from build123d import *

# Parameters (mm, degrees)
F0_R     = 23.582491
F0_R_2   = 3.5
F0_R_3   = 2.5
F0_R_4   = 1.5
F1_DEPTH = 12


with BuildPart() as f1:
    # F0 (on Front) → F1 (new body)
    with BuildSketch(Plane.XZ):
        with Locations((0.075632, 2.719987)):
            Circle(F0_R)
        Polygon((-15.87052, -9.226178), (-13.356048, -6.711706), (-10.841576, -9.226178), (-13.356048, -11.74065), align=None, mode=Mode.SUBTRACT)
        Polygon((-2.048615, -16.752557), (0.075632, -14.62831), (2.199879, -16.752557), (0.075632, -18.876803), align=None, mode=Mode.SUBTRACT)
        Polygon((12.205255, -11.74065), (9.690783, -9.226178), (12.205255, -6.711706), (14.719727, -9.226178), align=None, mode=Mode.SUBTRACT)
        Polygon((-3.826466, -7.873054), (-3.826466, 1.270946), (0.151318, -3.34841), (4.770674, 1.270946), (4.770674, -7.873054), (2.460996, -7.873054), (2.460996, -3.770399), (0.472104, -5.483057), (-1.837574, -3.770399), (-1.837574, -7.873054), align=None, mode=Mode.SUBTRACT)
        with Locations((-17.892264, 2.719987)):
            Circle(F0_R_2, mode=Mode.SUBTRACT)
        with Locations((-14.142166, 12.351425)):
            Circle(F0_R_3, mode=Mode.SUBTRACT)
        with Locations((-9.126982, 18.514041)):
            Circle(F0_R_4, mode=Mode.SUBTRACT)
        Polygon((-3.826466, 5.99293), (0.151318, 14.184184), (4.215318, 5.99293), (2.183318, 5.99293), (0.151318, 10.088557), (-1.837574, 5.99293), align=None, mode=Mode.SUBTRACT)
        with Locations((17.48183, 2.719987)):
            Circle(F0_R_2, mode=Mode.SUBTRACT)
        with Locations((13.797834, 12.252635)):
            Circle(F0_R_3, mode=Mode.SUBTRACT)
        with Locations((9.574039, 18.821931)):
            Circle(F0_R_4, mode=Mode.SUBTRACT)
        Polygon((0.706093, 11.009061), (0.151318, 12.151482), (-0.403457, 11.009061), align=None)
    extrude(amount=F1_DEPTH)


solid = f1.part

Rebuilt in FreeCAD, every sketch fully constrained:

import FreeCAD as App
import Part
import Sketcher

V = App.Vector
Q = App.Units.Quantity


def add_polygon(sketch, points):
    """Adds a closed chain of lines whose ends are joined by coincident constraints."""
    first, n = sketch.GeometryCount, len(points)
    for a, b in zip(points, points[1:] + points[:1]):
        sketch.addGeometry(Part.LineSegment(App.Vector(*a, 0), App.Vector(*b, 0)), False)
    for i in range(n):
        sketch.addConstraint(Sketcher.Constraint("Coincident", first + i, 2, first + (i + 1) % n, 1))

doc = App.newDocument("Part")
params = doc.addObject("Spreadsheet::Sheet", "Params")
for row, (alias, value) in enumerate([
    ("sketch1_width", "0.08 in"),
    ("sketch1_height", "0.36 in"),
    ("sketch1_length", "0.14 in"),
    ("sketch1_length2", "0.24 in"),
    ("sketch1_length3", "0.36 in"),
    ("pad1_length", "12 mm"),
], start=1):
    params.set(f"A{row}", alias)
    params.set(f"B{row}", "=" + value)
    params.setAlias(f"B{row}", alias)

body = doc.addObject("PartDesign::Body", "Body")
body.AllowCompound = True

# Sketch on XZ plane
sketch1 = body.newObject("Sketcher::SketchObject", "Sketch")
sketch1.AttachmentSupport = (doc.getObject("XZ_Plane"), [""])
sketch1.MapMode = "FlatFace"
sketch1.addGeometry(Part.Circle(V(0.075632, 2.719987, 0), V(0, 0, 1), 23.582491), False)  # 0
add_polygon(sketch1, [(-13.356048, -11.74065), (-15.87052, -9.226178), (-13.356048, -6.711706), (-10.841576, -9.226178)])  # lines 1-4
add_polygon(sketch1, [(0.075632, -18.876803), (-2.048615, -16.752557), (0.075632, -14.62831), (2.199879, -16.752557)])  # lines 5-8
add_polygon(sketch1, [(14.719727, -9.226178), (12.205255, -11.74065), (9.690783, -9.226178), (12.205255, -6.711706)])  # lines 9-12
add_polygon(sketch1, [(-1.837574, -7.873054), (-3.826466, -7.873054), (-3.826466, 1.270946), (0.151318, -3.34841), (4.770674, 1.270946), (4.770674, -7.873054), (2.460996, -7.873054), (2.460996, -3.770399), (0.472104, -5.483057), (-1.837574, -3.770399)])  # lines 13-22
sketch1.addGeometry(Part.Circle(V(-17.892264, 2.719987, 0), V(0, 0, 1), 3.5), False)  # 23
sketch1.addGeometry(Part.Circle(V(-14.142166, 12.351425, 0), V(0, 0, 1), 2.5), False)  # 24
sketch1.addGeometry(Part.Circle(V(-9.126982, 18.514041, 0), V(0, 0, 1), 1.5), False)  # 25
add_polygon(sketch1, [(-1.837574, 5.99293), (-3.826466, 5.99293), (0.151318, 14.184184), (4.215318, 5.99293), (2.183318, 5.99293), (0.151318, 10.088557)])  # lines 26-31
sketch1.addGeometry(Part.Circle(V(17.48183, 2.719987, 0), V(0, 0, 1), 3.5), False)  # 32
sketch1.addGeometry(Part.Circle(V(9.574039, 18.821931, 0), V(0, 0, 1), 1.5), False)  # 33
sketch1.addGeometry(Part.Circle(V(13.797834, 12.252635, 0), V(0, 0, 1), 2.5), False)  # 34
add_polygon(sketch1, [(0.706093, 11.009061), (0.151318, 12.151482), (-0.403457, 11.009061)])  # lines 35-37
sketch1.addConstraint(Sketcher.Constraint("Horizontal", 13))
sketch1.addConstraint(Sketcher.Constraint("Vertical", 14))
sketch1.addConstraint(Sketcher.Constraint("Vertical", 17))
sketch1.addConstraint(Sketcher.Constraint("Horizontal", 18))
sketch1.addConstraint(Sketcher.Constraint("Vertical", 19))
sketch1.addConstraint(Sketcher.Constraint("Vertical", 22))
sketch1.addConstraint(Sketcher.Constraint("Horizontal", 26))
sketch1.addConstraint(Sketcher.Constraint("Horizontal", 29))
sketch1.addConstraint(Sketcher.Constraint("Horizontal", 37))
sketch1.addConstraint(Sketcher.Constraint("Equal", 23, 32))
sketch1.addConstraint(Sketcher.Constraint("Equal", 25, 33))
sketch1.addConstraint(Sketcher.Constraint("Equal", 24, 34))
sketch1.addConstraint(Sketcher.Constraint("Perpendicular", 1, 2))
sketch1.addConstraint(Sketcher.Constraint("Perpendicular", 2, 3))
sketch1.addConstraint(Sketcher.Constraint("Perpendicular", 3, 4))
sketch1.addConstraint(Sketcher.Constraint("Perpendicular", 4, 5))
sketch1.addConstraint(Sketcher.Constraint("Perpendicular", 5, 6))
sketch1.addConstraint(Sketcher.Constraint("Perpendicular", 6, 7))
sketch1.addConstraint(Sketcher.Constraint("Perpendicular", 7, 8))
sketch1.addConstraint(Sketcher.Constraint("Parallel", 8, 9))
sketch1.addConstraint(Sketcher.Constraint("Perpendicular", 9, 10))
sketch1.addConstraint(Sketcher.Constraint("Perpendicular", 10, 11))
sketch1.addConstraint(Sketcher.Constraint("Perpendicular", 11, 12))
sketch1.addConstraint(Sketcher.Constraint("Perpendicular", 12, 16))
sketch1.addConstraint(Sketcher.Constraint("Perpendicular", 15, 20))
sketch1.addConstraint(Sketcher.Constraint("Parallel", 28, 30))
sketch1.addConstraint(Sketcher.Constraint("Parallel", 27, 31))
sketch1.addConstraint(Sketcher.Constraint("Parallel", 31, 36))
sketch1.addConstraint(Sketcher.Constraint("Horizontal", 0, 3, 23, 3))
sketch1.addConstraint(Sketcher.Constraint("Horizontal", 23, 3, 32, 3))
sketch1.addConstraint(Sketcher.Constraint("Horizontal", 1, 2, 3, 2))
sketch1.addConstraint(Sketcher.Constraint("Horizontal", 5, 2, 7, 2))
sketch1.addConstraint(Sketcher.Constraint("Horizontal", 4, 2, 9, 2))
sketch1.addConstraint(Sketcher.Constraint("Horizontal", 3, 2, 10, 2))
sketch1.addConstraint(Sketcher.Constraint("Horizontal", 2, 2, 11, 2))
sketch1.addConstraint(Sketcher.Constraint("Horizontal", 14, 2, 16, 2))
sketch1.addConstraint(Sketcher.Constraint("Horizontal", 13, 2, 17, 2))
sketch1.addConstraint(Sketcher.Constraint("Horizontal", 19, 2, 21, 2))
sketch1.addConstraint(Sketcher.Constraint("Horizontal", 26, 2, 28, 2))
sketch1.addConstraint(Sketcher.Constraint("Vertical", 2, 2, 4, 2))
sketch1.addConstraint(Sketcher.Constraint("Vertical", 0, 3, 6, 2))
sketch1.addConstraint(Sketcher.Constraint("Vertical", 14, 2, 26, 2))
sketch1.addConstraint(Sketcher.Constraint("Vertical", 15, 2, 27, 2))
sketch1.addConstraint(Sketcher.Constraint("Vertical", 27, 2, 30, 2))
sketch1.addConstraint(Sketcher.Constraint("Vertical", 22, 2, 31, 2))
sketch1.addConstraint(Sketcher.Constraint("Vertical", 30, 2, 35, 2))
sketch1.addConstraint(Sketcher.Constraint("Equal", 35, 36))
sketch1.addConstraint(Sketcher.Constraint("DistanceX", 29, 2, 29, 1, Q("0.08 in")))
sketch1.addConstraint(Sketcher.Constraint("DistanceY", 14, 1, 14, 2, Q("0.36 in")))
sketch1.addConstraint(Sketcher.Constraint("DistanceX", 24, 3, 34, 3, Q("1.1 in")))
sketch1.addConstraint(Sketcher.Constraint("Distance", 1, Q("0.14 in")))
sketch1.addConstraint(Sketcher.Constraint("Distance", 15, Q("0.24 in")))
sketch1.addConstraint(Sketcher.Constraint("Distance", 28, Q("0.36 in")))
sketch1.addConstraint(Sketcher.Constraint("Distance", 30, Q("0.18 in")))
sketch1.addConstraint(Sketcher.Constraint("Distance", 35, Q("0.05 in")))
sketch1.addConstraint(Sketcher.Constraint("Diameter", 23, Q("7 mm")))
sketch1.addConstraint(Sketcher.Constraint("Diameter", 24, Q("5 mm")))
sketch1.addConstraint(Sketcher.Constraint("Diameter", 25, Q("3 mm")))
sketch1.addConstraint(Sketcher.Constraint("Diameter", 0, Q("47.164982 mm")))
sketch1.addConstraint(Sketcher.Constraint("DistanceX", 16, 2, 11, 2, Q("0.2927 in")))
sketch1.addConstraint(Sketcher.Constraint("DistanceX", 13, 2, 13, 1, Q("1.988892 mm")))
sketch1.addConstraint(Sketcher.Constraint("DistanceY", 19, 2, -1, 1, Q("3.770399 mm")))
sketch1.addConstraint(Sketcher.Constraint("DistanceX", 23, 3, 24, 3, Q("3.750098 mm")))
sketch1.addConstraint(Sketcher.Constraint("DistanceX", 0, 3, 32, 3, Q("17.406198 mm")))
sketch1.addConstraint(Sketcher.Constraint("DistanceX", 0, 3, 34, 3, Q("13.722202 mm")))
sketch1.addConstraint(Sketcher.Constraint("DistanceX", 13, 2, 6, 2, Q("3.902098 mm")))
sketch1.addConstraint(Sketcher.Constraint("DistanceY", 6, 2, 15, 2, Q("11.2799 mm")))
sketch1.addConstraint(Sketcher.Constraint("DistanceX", 25, 3, 27, 2, Q("9.2783 mm")))
sketch1.addConstraint(Sketcher.Constraint("Distance", 5, Q("3.004138 mm")))
sketch1.addConstraint(Sketcher.Constraint("Distance", 20, Q("2.624669 mm")))
sketch1.addConstraint(Sketcher.Constraint("Distance", 21, Q("2.87538 mm")))
sketch1.addConstraint(Sketcher.Constraint("DistanceY", 19, 1, 19, 2, Q("4.102655 mm")))
sketch1.addConstraint(Sketcher.Constraint("DistanceY", -1, 1, 25, 3, Q("18.514041 mm")))
sketch1.addConstraint(Sketcher.Constraint("DistanceX", -1, 1, 32, 3, Q("17.48183 mm")))
sketch1.addConstraint(Sketcher.Constraint("DistanceX", -1, 1, 33, 3, Q("9.574039 mm")))
sketch1.addConstraint(Sketcher.Constraint("DistanceY", -1, 1, 33, 3, Q("18.821931 mm")))
sketch1.addConstraint(Sketcher.Constraint("DistanceX", 1, 2, -1, 1, Q("15.87052 mm")))
sketch1.addConstraint(Sketcher.Constraint("DistanceY", 1, 2, -1, 1, Q("9.226178 mm")))
sketch1.addConstraint(Sketcher.Constraint("DistanceY", -1, 1, 26, 2, Q("5.99293 mm")))
sketch1.addConstraint(Sketcher.Constraint("DistanceY", -1, 1, 36, 2, Q("11.009061 mm")))
sketch1.addConstraint(Sketcher.Constraint("DistanceY", 23, 3, 24, 3, Q("9.631438 mm")))
sketch1.addConstraint(Sketcher.Constraint("DistanceY", 34, 3, 24, 3, Q("0.09879 mm")))
sketch1.addConstraint(Sketcher.Constraint("DistanceY", 2, 2, 24, 3, Q("19.063131 mm")))
sketch1.setExpression("Constraints[78]", "Params.sketch1_width")
sketch1.setExpression("Constraints[79]", "Params.sketch1_height")
sketch1.setExpression("Constraints[81]", "Params.sketch1_length")
sketch1.setExpression("Constraints[82]", "Params.sketch1_length2")
sketch1.setExpression("Constraints[83]", "Params.sketch1_length3")
pad1 = body.newObject("PartDesign::Pad", "Pad")
pad1.Profile = sketch1
pad1.setExpression("Length", "Params.pad1_length")

doc.recompute()
